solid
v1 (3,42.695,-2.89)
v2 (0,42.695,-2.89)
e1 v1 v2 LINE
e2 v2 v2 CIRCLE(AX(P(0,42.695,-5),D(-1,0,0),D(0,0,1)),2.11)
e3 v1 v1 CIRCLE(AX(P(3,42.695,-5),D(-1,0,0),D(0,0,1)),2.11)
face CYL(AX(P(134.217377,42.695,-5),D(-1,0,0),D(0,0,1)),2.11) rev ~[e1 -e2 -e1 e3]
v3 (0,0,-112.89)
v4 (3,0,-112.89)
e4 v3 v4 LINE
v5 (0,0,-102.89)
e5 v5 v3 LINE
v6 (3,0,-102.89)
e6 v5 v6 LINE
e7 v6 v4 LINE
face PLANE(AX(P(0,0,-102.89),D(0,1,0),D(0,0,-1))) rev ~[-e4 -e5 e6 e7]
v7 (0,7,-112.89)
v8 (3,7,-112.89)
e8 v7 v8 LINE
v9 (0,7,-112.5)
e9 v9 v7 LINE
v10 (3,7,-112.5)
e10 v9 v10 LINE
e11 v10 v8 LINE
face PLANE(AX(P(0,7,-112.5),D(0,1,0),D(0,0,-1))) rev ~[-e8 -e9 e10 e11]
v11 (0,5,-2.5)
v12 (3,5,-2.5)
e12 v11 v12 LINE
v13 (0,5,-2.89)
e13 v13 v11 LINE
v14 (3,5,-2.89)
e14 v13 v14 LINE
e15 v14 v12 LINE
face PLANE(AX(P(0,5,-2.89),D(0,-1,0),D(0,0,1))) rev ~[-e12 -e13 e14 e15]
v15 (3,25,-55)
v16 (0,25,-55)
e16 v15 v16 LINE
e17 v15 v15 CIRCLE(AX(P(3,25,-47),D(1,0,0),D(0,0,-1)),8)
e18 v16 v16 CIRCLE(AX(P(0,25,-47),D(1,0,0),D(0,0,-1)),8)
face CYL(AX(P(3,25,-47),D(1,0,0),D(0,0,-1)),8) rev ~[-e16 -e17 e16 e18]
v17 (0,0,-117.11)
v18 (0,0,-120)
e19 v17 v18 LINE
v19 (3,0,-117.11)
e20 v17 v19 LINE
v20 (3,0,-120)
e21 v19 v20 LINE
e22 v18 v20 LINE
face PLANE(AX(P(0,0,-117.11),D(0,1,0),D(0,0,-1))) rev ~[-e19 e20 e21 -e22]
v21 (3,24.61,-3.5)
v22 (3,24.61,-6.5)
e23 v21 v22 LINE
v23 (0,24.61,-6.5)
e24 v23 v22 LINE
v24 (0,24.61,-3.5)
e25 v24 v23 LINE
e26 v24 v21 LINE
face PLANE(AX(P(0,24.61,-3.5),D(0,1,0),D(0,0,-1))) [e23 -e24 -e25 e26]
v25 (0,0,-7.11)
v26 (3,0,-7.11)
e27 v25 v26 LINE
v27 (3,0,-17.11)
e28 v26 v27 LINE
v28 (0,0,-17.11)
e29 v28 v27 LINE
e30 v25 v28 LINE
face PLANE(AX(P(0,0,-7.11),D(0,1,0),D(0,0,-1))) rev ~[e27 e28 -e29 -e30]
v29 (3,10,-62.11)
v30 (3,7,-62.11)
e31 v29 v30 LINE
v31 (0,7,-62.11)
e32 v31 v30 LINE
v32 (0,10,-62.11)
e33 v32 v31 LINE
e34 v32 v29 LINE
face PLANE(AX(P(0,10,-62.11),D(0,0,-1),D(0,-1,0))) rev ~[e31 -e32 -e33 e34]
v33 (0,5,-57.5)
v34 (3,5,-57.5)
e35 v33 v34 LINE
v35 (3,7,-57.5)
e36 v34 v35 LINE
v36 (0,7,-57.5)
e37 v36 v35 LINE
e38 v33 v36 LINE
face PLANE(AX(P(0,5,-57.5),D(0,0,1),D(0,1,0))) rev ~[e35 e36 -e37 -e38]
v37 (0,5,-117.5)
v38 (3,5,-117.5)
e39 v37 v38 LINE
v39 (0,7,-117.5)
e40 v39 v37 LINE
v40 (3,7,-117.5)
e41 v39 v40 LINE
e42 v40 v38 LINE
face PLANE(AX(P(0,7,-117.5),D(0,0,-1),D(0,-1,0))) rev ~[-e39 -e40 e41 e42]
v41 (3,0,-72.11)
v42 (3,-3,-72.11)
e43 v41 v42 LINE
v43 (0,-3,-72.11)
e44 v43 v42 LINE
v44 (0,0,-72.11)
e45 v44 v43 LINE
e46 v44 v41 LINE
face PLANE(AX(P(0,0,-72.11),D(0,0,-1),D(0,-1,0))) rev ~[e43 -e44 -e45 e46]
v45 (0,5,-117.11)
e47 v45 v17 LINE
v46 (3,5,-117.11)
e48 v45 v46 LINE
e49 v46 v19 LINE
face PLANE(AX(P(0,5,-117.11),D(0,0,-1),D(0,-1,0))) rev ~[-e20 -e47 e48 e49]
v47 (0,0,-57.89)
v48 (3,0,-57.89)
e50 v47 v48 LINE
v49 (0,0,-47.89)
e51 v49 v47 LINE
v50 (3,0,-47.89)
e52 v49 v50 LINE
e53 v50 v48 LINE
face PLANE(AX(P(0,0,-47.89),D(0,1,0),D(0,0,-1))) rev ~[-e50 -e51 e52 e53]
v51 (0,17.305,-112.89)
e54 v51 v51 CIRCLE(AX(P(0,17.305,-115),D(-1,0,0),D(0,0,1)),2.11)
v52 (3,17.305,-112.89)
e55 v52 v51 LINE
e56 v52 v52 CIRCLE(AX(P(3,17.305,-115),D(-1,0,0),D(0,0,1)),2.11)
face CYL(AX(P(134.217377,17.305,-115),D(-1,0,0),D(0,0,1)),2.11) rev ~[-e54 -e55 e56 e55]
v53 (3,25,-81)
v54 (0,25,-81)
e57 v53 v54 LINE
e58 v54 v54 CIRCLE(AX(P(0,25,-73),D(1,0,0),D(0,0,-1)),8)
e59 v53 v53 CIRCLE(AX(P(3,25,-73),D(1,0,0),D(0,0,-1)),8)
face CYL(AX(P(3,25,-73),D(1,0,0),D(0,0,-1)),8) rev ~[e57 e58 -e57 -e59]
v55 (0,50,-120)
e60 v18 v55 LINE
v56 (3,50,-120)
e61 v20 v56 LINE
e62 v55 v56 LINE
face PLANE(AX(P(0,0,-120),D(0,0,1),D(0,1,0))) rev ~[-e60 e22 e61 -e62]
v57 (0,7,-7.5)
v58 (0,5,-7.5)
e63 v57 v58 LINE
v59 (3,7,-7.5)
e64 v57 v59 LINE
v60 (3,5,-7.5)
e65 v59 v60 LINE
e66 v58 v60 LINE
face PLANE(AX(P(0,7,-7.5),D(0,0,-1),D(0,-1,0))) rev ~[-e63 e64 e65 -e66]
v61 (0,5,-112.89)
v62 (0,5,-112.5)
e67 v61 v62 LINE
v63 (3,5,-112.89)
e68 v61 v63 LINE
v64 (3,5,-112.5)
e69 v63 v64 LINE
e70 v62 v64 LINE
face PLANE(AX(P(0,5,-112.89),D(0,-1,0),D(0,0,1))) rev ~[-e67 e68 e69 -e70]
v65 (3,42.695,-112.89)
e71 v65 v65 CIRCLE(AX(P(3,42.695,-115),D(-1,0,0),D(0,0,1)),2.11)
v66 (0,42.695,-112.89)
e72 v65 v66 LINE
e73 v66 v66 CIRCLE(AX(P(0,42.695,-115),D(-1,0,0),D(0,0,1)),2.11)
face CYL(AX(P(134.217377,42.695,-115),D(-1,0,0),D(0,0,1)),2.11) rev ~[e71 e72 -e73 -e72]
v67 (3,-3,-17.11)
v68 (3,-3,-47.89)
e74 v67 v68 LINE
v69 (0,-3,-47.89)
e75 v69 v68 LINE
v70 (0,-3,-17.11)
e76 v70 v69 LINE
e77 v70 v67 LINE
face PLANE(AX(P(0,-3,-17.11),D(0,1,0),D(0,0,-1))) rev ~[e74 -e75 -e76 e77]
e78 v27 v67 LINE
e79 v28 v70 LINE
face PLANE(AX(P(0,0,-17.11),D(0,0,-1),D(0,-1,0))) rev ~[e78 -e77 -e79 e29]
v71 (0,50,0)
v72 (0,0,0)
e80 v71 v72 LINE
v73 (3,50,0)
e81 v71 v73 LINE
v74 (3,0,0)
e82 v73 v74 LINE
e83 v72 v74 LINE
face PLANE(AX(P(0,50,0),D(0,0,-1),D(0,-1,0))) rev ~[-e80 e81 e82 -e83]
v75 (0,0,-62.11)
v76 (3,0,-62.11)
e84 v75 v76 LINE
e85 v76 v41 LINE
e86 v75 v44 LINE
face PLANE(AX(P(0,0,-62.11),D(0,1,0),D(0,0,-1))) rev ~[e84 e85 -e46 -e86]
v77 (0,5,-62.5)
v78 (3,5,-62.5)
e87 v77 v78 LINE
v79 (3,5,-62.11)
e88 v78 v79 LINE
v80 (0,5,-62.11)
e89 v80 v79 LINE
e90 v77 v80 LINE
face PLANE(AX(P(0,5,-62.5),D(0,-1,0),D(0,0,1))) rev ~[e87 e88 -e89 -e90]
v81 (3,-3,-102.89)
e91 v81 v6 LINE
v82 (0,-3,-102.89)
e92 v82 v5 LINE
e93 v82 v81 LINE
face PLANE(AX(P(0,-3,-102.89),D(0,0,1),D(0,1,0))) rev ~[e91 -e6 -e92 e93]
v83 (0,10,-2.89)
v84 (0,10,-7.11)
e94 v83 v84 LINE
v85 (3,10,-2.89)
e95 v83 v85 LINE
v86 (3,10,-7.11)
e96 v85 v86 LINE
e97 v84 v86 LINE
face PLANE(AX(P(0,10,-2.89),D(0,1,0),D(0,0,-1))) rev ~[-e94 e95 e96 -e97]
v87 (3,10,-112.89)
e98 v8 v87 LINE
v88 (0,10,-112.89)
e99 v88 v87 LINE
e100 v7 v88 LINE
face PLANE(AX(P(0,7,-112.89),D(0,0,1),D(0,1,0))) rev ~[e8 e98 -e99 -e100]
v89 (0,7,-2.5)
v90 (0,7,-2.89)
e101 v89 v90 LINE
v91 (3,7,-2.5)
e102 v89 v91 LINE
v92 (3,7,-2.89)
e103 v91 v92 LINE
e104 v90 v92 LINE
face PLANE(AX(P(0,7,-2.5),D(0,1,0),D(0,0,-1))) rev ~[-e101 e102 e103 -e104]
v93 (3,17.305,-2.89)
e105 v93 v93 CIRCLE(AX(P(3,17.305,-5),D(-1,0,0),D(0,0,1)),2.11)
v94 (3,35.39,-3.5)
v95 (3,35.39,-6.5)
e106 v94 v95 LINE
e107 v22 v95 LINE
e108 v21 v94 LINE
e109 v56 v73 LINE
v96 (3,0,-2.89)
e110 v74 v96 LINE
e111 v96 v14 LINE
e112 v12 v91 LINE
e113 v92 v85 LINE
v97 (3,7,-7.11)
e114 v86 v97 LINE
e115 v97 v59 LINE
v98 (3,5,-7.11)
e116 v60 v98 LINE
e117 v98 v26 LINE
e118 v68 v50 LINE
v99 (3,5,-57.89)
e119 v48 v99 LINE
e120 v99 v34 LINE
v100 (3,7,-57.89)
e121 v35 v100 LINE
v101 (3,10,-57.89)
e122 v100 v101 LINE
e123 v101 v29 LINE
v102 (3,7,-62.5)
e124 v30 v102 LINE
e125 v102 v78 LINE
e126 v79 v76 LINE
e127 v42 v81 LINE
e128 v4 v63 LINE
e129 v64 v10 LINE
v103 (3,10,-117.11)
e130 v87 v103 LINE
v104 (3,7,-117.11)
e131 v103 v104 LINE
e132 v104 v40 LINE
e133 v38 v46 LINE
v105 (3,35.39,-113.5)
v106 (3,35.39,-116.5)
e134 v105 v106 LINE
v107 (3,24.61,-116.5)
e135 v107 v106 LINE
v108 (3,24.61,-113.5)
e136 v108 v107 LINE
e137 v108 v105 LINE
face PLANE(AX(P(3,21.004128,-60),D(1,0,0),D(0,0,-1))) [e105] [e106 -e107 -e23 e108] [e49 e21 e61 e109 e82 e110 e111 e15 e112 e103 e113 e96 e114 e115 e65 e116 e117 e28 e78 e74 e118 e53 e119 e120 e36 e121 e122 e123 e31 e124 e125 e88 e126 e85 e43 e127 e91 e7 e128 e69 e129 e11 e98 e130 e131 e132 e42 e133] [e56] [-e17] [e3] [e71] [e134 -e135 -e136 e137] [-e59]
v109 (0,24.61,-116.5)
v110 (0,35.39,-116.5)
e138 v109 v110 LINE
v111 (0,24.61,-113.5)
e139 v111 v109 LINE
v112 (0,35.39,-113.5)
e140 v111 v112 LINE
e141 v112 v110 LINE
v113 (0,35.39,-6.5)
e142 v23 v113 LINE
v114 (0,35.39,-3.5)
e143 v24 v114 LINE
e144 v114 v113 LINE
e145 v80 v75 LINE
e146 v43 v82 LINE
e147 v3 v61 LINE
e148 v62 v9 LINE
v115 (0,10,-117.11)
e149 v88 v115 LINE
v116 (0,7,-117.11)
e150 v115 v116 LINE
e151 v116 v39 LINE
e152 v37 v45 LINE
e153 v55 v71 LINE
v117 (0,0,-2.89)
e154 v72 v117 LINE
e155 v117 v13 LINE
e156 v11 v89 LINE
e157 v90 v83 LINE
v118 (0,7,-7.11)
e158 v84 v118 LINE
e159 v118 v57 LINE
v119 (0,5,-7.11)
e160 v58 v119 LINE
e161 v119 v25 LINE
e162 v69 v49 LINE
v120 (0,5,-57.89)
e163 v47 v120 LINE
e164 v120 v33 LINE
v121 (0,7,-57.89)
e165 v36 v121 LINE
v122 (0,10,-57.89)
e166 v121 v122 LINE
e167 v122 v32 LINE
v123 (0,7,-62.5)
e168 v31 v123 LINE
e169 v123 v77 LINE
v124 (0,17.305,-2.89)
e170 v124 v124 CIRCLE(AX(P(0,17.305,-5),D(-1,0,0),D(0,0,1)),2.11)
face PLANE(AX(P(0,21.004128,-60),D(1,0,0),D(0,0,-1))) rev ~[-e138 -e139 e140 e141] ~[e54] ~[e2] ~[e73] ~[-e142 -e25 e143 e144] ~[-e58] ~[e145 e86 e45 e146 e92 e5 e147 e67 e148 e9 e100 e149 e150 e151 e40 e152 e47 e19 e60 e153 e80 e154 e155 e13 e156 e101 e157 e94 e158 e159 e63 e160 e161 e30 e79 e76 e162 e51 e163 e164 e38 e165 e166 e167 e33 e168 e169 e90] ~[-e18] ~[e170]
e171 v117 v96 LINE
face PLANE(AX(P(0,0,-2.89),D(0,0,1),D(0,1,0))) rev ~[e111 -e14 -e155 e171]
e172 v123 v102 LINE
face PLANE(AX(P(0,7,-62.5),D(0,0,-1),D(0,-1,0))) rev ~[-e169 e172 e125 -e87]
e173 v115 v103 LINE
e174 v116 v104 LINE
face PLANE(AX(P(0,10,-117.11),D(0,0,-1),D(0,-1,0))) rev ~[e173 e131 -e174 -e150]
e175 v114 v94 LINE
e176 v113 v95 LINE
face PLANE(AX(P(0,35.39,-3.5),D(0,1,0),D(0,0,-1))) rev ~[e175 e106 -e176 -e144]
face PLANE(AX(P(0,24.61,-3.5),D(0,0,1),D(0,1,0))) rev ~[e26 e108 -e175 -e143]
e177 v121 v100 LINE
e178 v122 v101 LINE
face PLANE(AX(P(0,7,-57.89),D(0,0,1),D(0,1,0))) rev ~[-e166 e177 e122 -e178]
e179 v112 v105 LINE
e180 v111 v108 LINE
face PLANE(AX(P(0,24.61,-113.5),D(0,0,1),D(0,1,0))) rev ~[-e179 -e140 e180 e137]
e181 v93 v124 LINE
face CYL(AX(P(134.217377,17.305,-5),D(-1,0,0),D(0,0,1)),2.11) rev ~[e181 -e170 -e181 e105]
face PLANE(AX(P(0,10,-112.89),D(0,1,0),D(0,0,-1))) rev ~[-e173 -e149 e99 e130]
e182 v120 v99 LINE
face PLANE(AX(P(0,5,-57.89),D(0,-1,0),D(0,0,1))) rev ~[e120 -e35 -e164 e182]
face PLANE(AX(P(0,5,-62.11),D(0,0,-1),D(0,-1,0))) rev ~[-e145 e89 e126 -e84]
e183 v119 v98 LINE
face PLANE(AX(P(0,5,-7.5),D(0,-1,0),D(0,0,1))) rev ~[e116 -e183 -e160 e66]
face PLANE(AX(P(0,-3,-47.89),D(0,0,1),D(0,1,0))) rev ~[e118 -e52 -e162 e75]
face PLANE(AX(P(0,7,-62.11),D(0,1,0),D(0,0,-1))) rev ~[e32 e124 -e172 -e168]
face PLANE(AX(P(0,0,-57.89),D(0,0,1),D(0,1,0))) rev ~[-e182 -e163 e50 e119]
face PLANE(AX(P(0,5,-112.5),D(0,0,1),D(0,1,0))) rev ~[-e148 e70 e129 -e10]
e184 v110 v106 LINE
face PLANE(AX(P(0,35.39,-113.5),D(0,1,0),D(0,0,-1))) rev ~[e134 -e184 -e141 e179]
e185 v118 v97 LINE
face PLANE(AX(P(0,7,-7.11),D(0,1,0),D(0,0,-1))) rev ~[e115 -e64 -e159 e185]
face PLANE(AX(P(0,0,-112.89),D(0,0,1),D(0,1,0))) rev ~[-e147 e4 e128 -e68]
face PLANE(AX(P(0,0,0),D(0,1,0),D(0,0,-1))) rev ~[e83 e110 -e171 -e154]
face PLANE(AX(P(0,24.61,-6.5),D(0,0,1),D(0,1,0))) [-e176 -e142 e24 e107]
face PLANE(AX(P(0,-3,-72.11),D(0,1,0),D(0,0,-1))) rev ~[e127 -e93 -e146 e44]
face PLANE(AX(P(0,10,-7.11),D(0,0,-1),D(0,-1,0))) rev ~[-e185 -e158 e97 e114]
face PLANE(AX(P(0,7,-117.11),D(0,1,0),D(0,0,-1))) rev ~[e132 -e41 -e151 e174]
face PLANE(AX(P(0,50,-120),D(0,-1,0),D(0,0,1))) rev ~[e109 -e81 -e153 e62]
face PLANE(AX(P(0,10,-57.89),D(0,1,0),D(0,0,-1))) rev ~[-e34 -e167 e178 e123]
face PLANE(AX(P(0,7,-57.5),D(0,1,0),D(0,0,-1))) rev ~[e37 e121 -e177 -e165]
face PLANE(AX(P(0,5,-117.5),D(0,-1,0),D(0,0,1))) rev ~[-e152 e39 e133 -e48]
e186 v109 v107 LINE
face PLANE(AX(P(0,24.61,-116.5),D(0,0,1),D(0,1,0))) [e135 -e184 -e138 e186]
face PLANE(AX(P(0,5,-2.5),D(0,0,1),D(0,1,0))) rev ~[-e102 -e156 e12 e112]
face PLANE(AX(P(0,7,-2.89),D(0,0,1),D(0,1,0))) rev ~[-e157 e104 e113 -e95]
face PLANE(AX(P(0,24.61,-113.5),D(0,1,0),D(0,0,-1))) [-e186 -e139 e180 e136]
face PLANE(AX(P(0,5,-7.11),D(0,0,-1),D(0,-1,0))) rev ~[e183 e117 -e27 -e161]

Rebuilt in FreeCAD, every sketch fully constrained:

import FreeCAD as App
import Part
import Sketcher
from FreeCAD import Vector
Q = App.Units.Quantity


def add_polygon(sketch, points):
    """Adds a closed chain of lines whose ends are joined by coincident constraints."""
    first, n = sketch.GeometryCount, len(points)
    for a, b in zip(points, points[1:] + points[:1]):
        sketch.addGeometry(Part.LineSegment(App.Vector(*a, 0), App.Vector(*b, 0)), False)
    for i in range(n):
        sketch.addConstraint(Sketcher.Constraint("Coincident", first + i, 2, first + (i + 1) % n, 1))

doc = App.newDocument("Part")
body = doc.addObject("PartDesign::Body", "Body")

sketch1 = body.newObject("Sketcher::SketchObject", "Sketch")
sketch1.AttachmentSupport = (doc.getObject("YZ_Plane"), [""])
sketch1.MapMode = "FlatFace"
add_polygon(sketch1, [(0, 0), (0, -2.89), (5, -2.89), (5, -2.5), (7, -2.5), (7, -2.89), (10, -2.89), (10, -7.11), (7, -7.11), (7, -7.5), (5, -7.5), (5, -7.11), (0, -7.11), (0, -17.11), (-3, -17.11), (-3, -47.89), (0, -47.89), (0, -57.89), (5, -57.89), (5, -57.5), (7, -57.5), (7, -57.89), (10, -57.89), (10, -62.11), (7, -62.11), (7, -62.5), (5, -62.5), (5, -62.11), (0, -62.11), (0, -72.11), (-3, -72.11), (-3, -102.89), (0, -102.89), (0, -112.89), (5, -112.89), (5, -112.5), (7, -112.5), (7, -112.89), (10, -112.89), (10, -117.11), (7, -117.11), (7, -117.5), (5, -117.5), (5, -117.11), (0, -117.11), (0, -120), (50, -120), (50, 0)])
add_polygon(sketch1, [(24.61, -6.5), (24.61, -3.5), (35.39, -3.5), (35.39, -6.5)])
add_polygon(sketch1, [(24.61, -116.5), (24.61, -113.5), (35.39, -113.5), (35.39, -116.5)])
sketch1.addConstraint([
    Sketcher.Constraint("Vertical", 0),
    Sketcher.Constraint("Horizontal", 1),
    Sketcher.Constraint("Vertical", 2),
    Sketcher.Constraint("Horizontal", 3),
    Sketcher.Constraint("Vertical", 4),
    Sketcher.Constraint("Horizontal", 5),
    Sketcher.Constraint("Vertical", 6),
    Sketcher.Constraint("Horizontal", 7),
    Sketcher.Constraint("Vertical", 8),
    Sketcher.Constraint("Horizontal", 9),
    Sketcher.Constraint("Vertical", 10),
    Sketcher.Constraint("Horizontal", 11),
    Sketcher.Constraint("Vertical", 12),
    Sketcher.Constraint("Horizontal", 13),
    Sketcher.Constraint("Vertical", 14),
    Sketcher.Constraint("Horizontal", 15),
    Sketcher.Constraint("Vertical", 16),
    Sketcher.Constraint("Horizontal", 17),
    Sketcher.Constraint("Vertical", 18),
    Sketcher.Constraint("Horizontal", 19),
    Sketcher.Constraint("Vertical", 20),
    Sketcher.Constraint("Horizontal", 21),
    Sketcher.Constraint("Vertical", 22),
    Sketcher.Constraint("Horizontal", 23),
    Sketcher.Constraint("Vertical", 24),
    Sketcher.Constraint("Horizontal", 25),
    Sketcher.Constraint("Vertical", 26),
    Sketcher.Constraint("Horizontal", 27),
    Sketcher.Constraint("Vertical", 28),
    Sketcher.Constraint("Horizontal", 29),
    Sketcher.Constraint("Vertical", 30),
    Sketcher.Constraint("Horizontal", 31),
    Sketcher.Constraint("Vertical", 32),
    Sketcher.Constraint("Horizontal", 33),
    Sketcher.Constraint("Vertical", 34),
    Sketcher.Constraint("Horizontal", 35),
    Sketcher.Constraint("Vertical", 36),
    Sketcher.Constraint("Horizontal", 37),
    Sketcher.Constraint("Vertical", 38),
    Sketcher.Constraint("Horizontal", 39),
    Sketcher.Constraint("Vertical", 40),
    Sketcher.Constraint("Horizontal", 41),
    Sketcher.Constraint("Vertical", 42),
    Sketcher.Constraint("Horizontal", 43),
    Sketcher.Constraint("Vertical", 44),
    Sketcher.Constraint("Horizontal", 45),
    Sketcher.Constraint("Vertical", 46),
    Sketcher.Constraint("Horizontal", 47),
    Sketcher.Constraint("Vertical", 48),
    Sketcher.Constraint("Horizontal", 49),
    Sketcher.Constraint("Vertical", 50),
    Sketcher.Constraint("Horizontal", 51),
    Sketcher.Constraint("Vertical", 52),
    Sketcher.Constraint("Horizontal", 53),
    Sketcher.Constraint("Vertical", 54),
    Sketcher.Constraint("Horizontal", 55),
    Sketcher.Constraint("Coincident", 47, 2, -1, 1),
    Sketcher.Constraint("PointOnObject", 11, 2, -2),
    Sketcher.Constraint("PointOnObject", 15, 2, -2),
    Sketcher.Constraint("PointOnObject", 27, 2, -2),
    Sketcher.Constraint("PointOnObject", 31, 2, -2),
    Sketcher.Constraint("PointOnObject", 43, 2, -2),
    Sketcher.Constraint("Horizontal", 1, 2, 4, 2),
    Sketcher.Constraint("Horizontal", 7, 2, 10, 2),
    Sketcher.Constraint("Horizontal", 17, 2, 20, 2),
    Sketcher.Constraint("Horizontal", 23, 2, 26, 2),
    Sketcher.Constraint("Horizontal", 33, 2, 36, 2),
    Sketcher.Constraint("Horizontal", 39, 2, 42, 2),
    Sketcher.Constraint("Vertical", 4, 2, 7, 2),
    Sketcher.Constraint("Vertical", 2, 2, 9, 2),
    Sketcher.Constraint("Vertical", 10, 2, 17, 2),
    Sketcher.Constraint("Vertical", 8, 2, 19, 2),
    Sketcher.Constraint("Vertical", 6, 2, 21, 2),
    Sketcher.Constraint("Vertical", 20, 2, 23, 2),
    Sketcher.Constraint("Vertical", 18, 2, 25, 2),
    Sketcher.Constraint("Vertical", 14, 2, 29, 2),
    Sketcher.Constraint("Vertical", 26, 2, 33, 2),
    Sketcher.Constraint("Vertical", 24, 2, 35, 2),
    Sketcher.Constraint("Vertical", 22, 2, 37, 2),
    Sketcher.Constraint("Vertical", 36, 2, 39, 2),
    Sketcher.Constraint("Vertical", 34, 2, 41, 2),
    Sketcher.Constraint("Vertical", 51, 2, 52, 2),
    Sketcher.Constraint("Vertical", 50, 2, 53, 2),
    Sketcher.Constraint("Equal", 7, 13),
    Sketcher.Constraint("Equal", 4, 8),
    Sketcher.Constraint("Equal", 12, 16),
    Sketcher.Constraint("Equal", 10, 18),
    Sketcher.Constraint("Equal", 6, 22),
    Sketcher.Constraint("Equal", 20, 24),
    Sketcher.Constraint("Equal", 16, 28),
    Sketcher.Constraint("Equal", 14, 30),
    Sketcher.Constraint("Equal", 28, 32),
    Sketcher.Constraint("Equal", 26, 34),
    Sketcher.Constraint("Equal", 22, 38),
    Sketcher.Constraint("Equal", 36, 40),
    Sketcher.Constraint("Equal", 0, 44),
    Sketcher.Constraint("Equal", 39, 48),
    Sketcher.Constraint("Equal", 50, 52),
    Sketcher.Constraint("DistanceX", 1, 1, 1, 2, Q("5 mm")),
    Sketcher.Constraint("DistanceX", 3, 1, 3, 2, Q("2 mm")),
    Sketcher.Constraint("DistanceX", 5, 1, 5, 2, Q("3 mm")),
    Sketcher.Constraint("DistanceX", 45, 1, 45, 2, Q("50 mm")),
    Sketcher.Constraint("DistanceY", 12, 2, 12, 1, Q("10 mm")),
    Sketcher.Constraint("DistanceY", 46, 1, 46, 2, Q("120 mm")),
    Sketcher.Constraint("DistanceY", 8, 2, 3, 2, Q("5 mm")),
    Sketcher.Constraint("DistanceY", 48, 2, 3, 2, Q("1 mm")),
    Sketcher.Constraint("DistanceY", 52, 2, 35, 2, Q("1 mm")),
    Sketcher.Constraint("DistanceX", 49, 1, 49, 2, Q("10.78 mm")),
    Sketcher.Constraint("DistanceY", 0, 2, 0, 1, Q("2.89 mm")),
    Sketcher.Constraint("DistanceY", 2, 1, 2, 2, Q("0.39 mm")),
    Sketcher.Constraint("DistanceX", -1, 1, 48, 2, Q("24.61 mm")),
])
pad1 = body.newObject("PartDesign::Pad", "Pad")
pad1.Profile = sketch1
pad1.Length = 3

sketch2 = body.newObject("Sketcher::SketchObject", "Sketch001")
sketch2.AttachmentSupport = (doc.getObject("YZ_Plane"), [""])
sketch2.MapMode = "FlatFace"
sketch2.AttachmentOffset = App.Placement(Vector(0, 0, 3), App.Rotation())
sketch2.addGeometry([
    Part.Circle(Vector(42.7, -5, 0), Vector(0, 0, 1), 2.1),
    Part.Circle(Vector(17.3, -5, 0), Vector(0, 0, 1), 2.1),
    Part.Circle(Vector(42.7, -115, 0), Vector(0, 0, 1), 2.1),
    Part.Circle(Vector(17.3, -115, 0), Vector(0, 0, 1), 2.1),
], False)
sketch2.addConstraint([
    Sketcher.Constraint("Equal", 0, 1),
    Sketcher.Constraint("Equal", 1, 2),
    Sketcher.Constraint("Equal", 2, 3),
    Sketcher.Constraint("Horizontal", 0, 3, 1, 3),
    Sketcher.Constraint("Horizontal", 2, 3, 3, 3),
    Sketcher.Constraint("Vertical", 0, 3, 2, 3),
    Sketcher.Constraint("Vertical", 1, 3, 3, 3),
    Sketcher.Constraint("Diameter", 0, Q("4.22 mm")),
    Sketcher.Constraint("DistanceY", 0, 3, -1, 1, Q("5 mm")),
    Sketcher.Constraint("DistanceY", 2, 3, -1, 1, Q("115 mm")),
    Sketcher.Constraint("DistanceX", 1, 3, 0, 3, Q("25.39 mm")),
    Sketcher.Constraint("DistanceX", -1, 1, 0, 3, Q("42.695 mm")),
])
doc.recompute()
hole = body.newObject("PartDesign::Hole", "Hole")
hole.Profile = sketch2
hole.ThreadType = "None"
hole.Diameter = 4.22
hole.DepthType = "ThroughAll"

sketch3 = body.newObject("Sketcher::SketchObject", "Sketch002")
sketch3.AttachmentSupport = (doc.getObject("YZ_Plane"), [""])
sketch3.MapMode = "FlatFace"
sketch3.AttachmentOffset = App.Placement(Vector(0, 0, 3), App.Rotation())
sketch3.addGeometry([
    Part.Circle(Vector(25, -73, 0), Vector(0, 0, 1), 8),
    Part.Circle(Vector(25, -47, 0), Vector(0, 0, 1), 8),
], False)
sketch3.addConstraint([
    Sketcher.Constraint("Equal", 0, 1),
    Sketcher.Constraint("Vertical", 0, 3, 1, 3),
    Sketcher.Constraint("Diameter", 0, Q("16 mm")),
    Sketcher.Constraint("DistanceX", -1, 1, 0, 3, Q("25 mm")),
    Sketcher.Constraint("DistanceY", 0, 3, -1, 1, Q("73 mm")),
    Sketcher.Constraint("DistanceY", 1, 3, -1, 1, Q("47 mm")),
])
pocket1 = body.newObject("PartDesign::Pocket", "Pocket")
pocket1.Profile = sketch3
pocket1.Length = 10

doc.recompute()
